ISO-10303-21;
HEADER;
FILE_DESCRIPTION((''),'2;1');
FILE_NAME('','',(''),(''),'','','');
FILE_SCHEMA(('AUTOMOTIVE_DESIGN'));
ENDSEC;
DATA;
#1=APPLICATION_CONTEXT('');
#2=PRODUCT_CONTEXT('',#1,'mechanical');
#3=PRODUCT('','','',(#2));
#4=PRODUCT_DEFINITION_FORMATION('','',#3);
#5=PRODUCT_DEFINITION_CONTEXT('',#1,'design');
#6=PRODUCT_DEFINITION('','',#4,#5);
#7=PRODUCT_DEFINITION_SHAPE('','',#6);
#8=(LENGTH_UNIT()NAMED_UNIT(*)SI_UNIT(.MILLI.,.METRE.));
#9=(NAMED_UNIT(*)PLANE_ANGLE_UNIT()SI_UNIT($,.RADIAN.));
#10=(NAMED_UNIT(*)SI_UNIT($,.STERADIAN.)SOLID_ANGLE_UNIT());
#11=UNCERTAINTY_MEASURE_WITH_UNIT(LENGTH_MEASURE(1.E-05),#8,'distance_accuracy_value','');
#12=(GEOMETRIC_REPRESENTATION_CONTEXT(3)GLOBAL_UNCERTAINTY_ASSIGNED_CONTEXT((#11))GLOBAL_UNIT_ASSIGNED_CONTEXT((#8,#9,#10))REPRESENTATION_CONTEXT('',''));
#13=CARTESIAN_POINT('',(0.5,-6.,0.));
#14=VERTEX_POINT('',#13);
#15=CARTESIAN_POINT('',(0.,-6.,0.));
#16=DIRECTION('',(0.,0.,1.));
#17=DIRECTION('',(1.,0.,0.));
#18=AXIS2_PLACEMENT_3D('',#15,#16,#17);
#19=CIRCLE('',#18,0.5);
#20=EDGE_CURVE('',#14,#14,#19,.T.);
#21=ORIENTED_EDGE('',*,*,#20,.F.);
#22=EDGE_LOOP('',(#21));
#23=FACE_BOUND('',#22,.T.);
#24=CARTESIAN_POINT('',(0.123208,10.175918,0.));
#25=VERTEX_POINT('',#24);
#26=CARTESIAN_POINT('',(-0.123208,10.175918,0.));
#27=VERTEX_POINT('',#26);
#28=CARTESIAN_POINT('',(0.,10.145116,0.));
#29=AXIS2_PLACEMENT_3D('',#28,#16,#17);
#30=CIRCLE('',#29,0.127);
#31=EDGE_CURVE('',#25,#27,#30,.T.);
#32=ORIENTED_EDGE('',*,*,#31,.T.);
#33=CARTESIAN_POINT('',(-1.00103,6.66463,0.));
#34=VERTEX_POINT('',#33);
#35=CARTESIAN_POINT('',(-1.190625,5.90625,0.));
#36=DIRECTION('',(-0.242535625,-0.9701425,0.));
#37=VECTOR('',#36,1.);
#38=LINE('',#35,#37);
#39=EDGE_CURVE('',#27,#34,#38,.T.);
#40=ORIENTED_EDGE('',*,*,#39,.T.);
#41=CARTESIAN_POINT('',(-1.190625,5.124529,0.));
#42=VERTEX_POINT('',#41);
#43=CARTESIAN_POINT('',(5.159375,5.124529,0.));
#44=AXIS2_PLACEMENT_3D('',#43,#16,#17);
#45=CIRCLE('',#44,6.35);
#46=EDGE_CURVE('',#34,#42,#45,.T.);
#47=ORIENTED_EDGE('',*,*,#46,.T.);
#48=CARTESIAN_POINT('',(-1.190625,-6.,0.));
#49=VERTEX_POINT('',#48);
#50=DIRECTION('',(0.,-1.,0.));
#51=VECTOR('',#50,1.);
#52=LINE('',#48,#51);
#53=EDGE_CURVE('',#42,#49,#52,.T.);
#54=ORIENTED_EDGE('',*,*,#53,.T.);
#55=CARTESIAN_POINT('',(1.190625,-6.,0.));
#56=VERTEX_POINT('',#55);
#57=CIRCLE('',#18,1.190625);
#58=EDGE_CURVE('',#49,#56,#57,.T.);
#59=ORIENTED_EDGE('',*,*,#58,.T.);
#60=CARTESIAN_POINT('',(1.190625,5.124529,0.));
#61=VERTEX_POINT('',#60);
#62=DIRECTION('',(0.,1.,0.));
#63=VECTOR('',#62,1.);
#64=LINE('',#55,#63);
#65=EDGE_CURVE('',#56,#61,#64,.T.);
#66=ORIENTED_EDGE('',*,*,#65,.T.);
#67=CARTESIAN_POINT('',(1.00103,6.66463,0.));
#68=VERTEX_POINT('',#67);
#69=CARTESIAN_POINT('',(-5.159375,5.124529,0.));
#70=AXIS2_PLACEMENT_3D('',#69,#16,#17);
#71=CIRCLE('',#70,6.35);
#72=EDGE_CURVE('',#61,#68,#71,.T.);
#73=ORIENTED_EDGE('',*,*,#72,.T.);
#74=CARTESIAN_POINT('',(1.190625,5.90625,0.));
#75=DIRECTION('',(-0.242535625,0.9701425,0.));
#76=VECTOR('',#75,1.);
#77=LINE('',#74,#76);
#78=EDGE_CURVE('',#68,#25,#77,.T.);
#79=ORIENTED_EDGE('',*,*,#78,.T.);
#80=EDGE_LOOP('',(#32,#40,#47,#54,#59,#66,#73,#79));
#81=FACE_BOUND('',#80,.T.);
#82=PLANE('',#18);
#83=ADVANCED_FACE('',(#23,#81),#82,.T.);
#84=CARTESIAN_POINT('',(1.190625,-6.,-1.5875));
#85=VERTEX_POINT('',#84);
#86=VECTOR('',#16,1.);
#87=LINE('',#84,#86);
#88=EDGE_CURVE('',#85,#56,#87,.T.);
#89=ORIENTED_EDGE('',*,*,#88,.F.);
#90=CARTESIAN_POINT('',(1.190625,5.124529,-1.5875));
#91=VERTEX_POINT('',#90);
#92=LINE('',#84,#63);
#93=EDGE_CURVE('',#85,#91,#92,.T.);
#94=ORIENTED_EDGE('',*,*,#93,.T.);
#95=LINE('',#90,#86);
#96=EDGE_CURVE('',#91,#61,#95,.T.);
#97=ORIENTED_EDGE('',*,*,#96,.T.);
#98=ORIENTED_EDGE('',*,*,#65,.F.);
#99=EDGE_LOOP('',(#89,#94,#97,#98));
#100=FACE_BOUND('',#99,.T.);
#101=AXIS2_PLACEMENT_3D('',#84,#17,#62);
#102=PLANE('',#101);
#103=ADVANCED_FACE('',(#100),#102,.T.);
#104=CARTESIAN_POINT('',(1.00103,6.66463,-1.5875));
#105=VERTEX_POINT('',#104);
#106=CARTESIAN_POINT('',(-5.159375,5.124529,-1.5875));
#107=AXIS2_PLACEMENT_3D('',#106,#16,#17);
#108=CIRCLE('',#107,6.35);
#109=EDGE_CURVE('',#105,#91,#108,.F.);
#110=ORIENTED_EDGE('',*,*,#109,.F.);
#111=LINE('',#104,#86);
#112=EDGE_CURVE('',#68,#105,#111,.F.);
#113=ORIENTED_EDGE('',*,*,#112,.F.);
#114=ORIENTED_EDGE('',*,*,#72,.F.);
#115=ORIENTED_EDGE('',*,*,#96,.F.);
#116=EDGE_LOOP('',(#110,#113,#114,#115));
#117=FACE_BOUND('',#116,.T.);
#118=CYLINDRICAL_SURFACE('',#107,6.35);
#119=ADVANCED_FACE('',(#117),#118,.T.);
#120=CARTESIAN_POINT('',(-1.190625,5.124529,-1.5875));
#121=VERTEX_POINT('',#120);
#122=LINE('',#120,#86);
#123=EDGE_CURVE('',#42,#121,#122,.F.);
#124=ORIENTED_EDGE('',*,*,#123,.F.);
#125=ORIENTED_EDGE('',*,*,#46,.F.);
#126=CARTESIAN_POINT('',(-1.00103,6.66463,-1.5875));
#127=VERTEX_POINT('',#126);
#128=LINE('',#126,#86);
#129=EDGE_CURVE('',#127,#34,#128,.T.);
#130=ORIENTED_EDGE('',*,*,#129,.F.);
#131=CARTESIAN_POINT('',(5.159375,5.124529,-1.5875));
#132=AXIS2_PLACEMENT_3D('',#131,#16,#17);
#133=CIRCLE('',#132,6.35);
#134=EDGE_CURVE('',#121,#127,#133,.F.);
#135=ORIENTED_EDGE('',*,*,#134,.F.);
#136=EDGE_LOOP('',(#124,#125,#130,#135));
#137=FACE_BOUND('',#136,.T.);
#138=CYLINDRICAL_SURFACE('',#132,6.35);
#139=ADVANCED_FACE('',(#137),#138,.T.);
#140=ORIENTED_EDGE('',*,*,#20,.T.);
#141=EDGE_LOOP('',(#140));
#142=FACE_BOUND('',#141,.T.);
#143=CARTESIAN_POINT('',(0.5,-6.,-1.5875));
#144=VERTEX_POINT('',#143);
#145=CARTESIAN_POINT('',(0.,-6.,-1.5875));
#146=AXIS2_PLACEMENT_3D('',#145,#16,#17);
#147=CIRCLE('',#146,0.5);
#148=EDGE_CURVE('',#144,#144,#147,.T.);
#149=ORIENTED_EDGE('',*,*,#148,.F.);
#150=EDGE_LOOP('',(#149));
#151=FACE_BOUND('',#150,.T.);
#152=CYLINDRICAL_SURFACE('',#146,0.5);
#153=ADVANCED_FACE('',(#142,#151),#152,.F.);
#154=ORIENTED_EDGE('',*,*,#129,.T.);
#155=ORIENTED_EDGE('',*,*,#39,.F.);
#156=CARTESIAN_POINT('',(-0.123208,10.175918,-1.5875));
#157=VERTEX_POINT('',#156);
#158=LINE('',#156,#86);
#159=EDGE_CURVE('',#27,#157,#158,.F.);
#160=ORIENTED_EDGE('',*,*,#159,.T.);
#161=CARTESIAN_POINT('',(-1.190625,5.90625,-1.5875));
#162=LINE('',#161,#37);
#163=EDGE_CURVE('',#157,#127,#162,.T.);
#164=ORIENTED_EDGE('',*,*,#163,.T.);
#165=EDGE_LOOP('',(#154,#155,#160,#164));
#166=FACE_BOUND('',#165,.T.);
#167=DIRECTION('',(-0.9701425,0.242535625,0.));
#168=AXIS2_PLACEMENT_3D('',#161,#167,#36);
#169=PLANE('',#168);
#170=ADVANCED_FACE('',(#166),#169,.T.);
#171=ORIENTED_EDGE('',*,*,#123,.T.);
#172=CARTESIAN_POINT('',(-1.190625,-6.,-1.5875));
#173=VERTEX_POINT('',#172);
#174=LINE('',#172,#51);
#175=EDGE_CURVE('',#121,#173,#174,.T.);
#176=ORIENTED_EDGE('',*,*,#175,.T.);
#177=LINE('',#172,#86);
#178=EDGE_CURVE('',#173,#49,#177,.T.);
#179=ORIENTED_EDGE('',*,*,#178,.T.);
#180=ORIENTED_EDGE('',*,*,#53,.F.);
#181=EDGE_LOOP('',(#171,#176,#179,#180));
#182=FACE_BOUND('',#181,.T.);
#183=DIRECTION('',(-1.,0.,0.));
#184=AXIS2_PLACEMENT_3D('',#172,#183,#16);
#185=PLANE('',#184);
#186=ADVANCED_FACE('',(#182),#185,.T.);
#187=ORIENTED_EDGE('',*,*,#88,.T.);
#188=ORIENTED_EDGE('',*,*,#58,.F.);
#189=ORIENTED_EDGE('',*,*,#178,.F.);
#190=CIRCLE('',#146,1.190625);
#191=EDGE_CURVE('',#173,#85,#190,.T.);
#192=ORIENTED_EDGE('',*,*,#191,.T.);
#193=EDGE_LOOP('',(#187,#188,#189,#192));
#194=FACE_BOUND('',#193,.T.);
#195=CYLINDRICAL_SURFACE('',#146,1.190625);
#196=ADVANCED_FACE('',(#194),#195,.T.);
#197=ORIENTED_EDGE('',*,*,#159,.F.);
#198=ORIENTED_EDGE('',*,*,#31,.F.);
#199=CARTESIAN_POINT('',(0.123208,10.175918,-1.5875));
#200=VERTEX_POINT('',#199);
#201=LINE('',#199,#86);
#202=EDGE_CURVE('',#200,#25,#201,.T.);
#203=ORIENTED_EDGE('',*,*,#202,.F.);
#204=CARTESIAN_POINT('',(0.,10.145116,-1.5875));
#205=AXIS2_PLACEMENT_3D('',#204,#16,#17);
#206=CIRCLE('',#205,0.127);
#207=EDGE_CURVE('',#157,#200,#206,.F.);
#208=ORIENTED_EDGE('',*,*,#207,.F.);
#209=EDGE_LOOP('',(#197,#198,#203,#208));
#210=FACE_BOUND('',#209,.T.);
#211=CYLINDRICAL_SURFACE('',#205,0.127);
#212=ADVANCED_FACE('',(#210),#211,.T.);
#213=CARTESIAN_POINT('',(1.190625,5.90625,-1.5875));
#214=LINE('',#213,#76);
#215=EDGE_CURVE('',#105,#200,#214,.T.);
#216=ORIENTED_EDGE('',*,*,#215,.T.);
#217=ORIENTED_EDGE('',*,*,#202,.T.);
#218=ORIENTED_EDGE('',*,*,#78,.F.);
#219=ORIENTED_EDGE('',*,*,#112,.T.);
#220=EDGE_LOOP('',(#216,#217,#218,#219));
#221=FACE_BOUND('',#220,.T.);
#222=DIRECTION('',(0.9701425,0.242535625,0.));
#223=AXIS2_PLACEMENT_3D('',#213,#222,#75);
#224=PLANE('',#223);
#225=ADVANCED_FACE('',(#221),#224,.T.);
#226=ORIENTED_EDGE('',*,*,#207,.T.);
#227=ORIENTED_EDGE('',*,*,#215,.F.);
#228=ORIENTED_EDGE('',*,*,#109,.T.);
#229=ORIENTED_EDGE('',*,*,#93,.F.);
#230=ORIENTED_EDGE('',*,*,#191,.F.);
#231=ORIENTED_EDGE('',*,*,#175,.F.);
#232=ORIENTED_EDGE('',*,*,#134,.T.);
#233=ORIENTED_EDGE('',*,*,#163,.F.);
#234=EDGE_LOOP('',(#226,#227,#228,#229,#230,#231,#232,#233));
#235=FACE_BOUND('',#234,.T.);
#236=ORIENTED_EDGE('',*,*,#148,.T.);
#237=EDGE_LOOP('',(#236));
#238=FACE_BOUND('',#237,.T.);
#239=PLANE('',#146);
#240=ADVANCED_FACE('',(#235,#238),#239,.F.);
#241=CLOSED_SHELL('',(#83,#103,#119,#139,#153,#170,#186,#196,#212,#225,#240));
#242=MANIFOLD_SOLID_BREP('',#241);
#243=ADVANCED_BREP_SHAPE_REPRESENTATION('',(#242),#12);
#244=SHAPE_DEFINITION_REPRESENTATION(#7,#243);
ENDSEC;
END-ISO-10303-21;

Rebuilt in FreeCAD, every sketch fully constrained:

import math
import FreeCAD as App
import Part
import Sketcher
Q = App.Units.Quantity


def edges_at(feature, points):
    """Names of the edges that pass closest to the given points."""
    edges = feature.Shape.Edges
    near = lambda p: min(range(len(edges)), key=lambda i: edges[i].distToShape(Part.Vertex(*p))[0])
    return sorted({f"Edge{near(p) + 1}" for p in points})

doc = App.newDocument("Part")
body = doc.addObject("PartDesign::Body", "Body")

# Sketch on XY plane
sketch1 = body.newObject("Sketcher::SketchObject", "Sketch")
sketch1.AttachmentSupport = (doc.getObject("XY_Plane"), [""])
sketch1.MapMode = "FlatFace"
sketch1.addGeometry([
    Part.LineSegment(App.Vector(-1.2, 5.9, 0), App.Vector(-1.2, -6, 0)),  # 0
    Part.ArcOfCircle(Part.Circle(App.Vector(0, -6, 0), App.Vector(0, 0, 1), 1.2), math.radians(180), math.radians(360)),  # 1
    Part.LineSegment(App.Vector(1.2, -6, 0), App.Vector(1.2, 5.9, 0)),  # 2
    Part.LineSegment(App.Vector(1.2, 5.9, 0), App.Vector(0, 10.7, 0)),  # 3
    Part.LineSegment(App.Vector(0, 10.7, 0), App.Vector(-1.2, 5.9, 0)),  # 4
    Part.Circle(App.Vector(0, -6, 0), App.Vector(0, 0, 1), 0.5),  # 5
], False)
sketch1.addConstraint([
    Sketcher.Constraint("Tangent", 0, 2, 1, 1),
    Sketcher.Constraint("Tangent", 1, 2, 2, 1),
    Sketcher.Constraint("Coincident", 2, 2, 3, 1),
    Sketcher.Constraint("Coincident", 3, 2, 4, 1),
    Sketcher.Constraint("Coincident", 4, 2, 0, 1),
    Sketcher.Constraint("Vertical", 0),
    Sketcher.Constraint("Vertical", 2),
    Sketcher.Constraint("Coincident", 5, 3, 1, 3),
    Sketcher.Constraint("Symmetric", 2, 2, 4, 2, -2),
    Sketcher.Constraint("PointOnObject", 3, 2, -2),
    Sketcher.Constraint("Radius", 1, Q("0.046875 in")),
    Sketcher.Constraint("Diameter", 5, 1.0),
    Sketcher.Constraint("DistanceY", 0, 2, 0, 1, Q("0.46875 in")),
    Sketcher.Constraint("DistanceY", 2, 2, 3, 2, Q("0.1875 in")),
    Sketcher.Constraint("DistanceY", 1, 3, -1, 1, 6.0),
])
pad1 = body.newObject("PartDesign::Pad", "Pad")
pad1.Profile = sketch1
pad1.Length = Q("0.0625 in")
pad1.Reversed = True
doc.recompute()

fillet = body.newObject("PartDesign::Fillet", "Fillet")
fillet.Base = (pad1, edges_at(pad1, [(-1.191, 5.906, -0.794), (1.191, 5.906, -0.794)]))
fillet.Radius = Q("0.25 in")
doc.recompute()

fillet2 = body.newObject("PartDesign::Fillet", "Fillet001")
fillet2.Base = (fillet, edges_at(fillet, [(0, 10.669, -0.794)]))
fillet2.Radius = Q("0.005 in")

doc.recompute()
